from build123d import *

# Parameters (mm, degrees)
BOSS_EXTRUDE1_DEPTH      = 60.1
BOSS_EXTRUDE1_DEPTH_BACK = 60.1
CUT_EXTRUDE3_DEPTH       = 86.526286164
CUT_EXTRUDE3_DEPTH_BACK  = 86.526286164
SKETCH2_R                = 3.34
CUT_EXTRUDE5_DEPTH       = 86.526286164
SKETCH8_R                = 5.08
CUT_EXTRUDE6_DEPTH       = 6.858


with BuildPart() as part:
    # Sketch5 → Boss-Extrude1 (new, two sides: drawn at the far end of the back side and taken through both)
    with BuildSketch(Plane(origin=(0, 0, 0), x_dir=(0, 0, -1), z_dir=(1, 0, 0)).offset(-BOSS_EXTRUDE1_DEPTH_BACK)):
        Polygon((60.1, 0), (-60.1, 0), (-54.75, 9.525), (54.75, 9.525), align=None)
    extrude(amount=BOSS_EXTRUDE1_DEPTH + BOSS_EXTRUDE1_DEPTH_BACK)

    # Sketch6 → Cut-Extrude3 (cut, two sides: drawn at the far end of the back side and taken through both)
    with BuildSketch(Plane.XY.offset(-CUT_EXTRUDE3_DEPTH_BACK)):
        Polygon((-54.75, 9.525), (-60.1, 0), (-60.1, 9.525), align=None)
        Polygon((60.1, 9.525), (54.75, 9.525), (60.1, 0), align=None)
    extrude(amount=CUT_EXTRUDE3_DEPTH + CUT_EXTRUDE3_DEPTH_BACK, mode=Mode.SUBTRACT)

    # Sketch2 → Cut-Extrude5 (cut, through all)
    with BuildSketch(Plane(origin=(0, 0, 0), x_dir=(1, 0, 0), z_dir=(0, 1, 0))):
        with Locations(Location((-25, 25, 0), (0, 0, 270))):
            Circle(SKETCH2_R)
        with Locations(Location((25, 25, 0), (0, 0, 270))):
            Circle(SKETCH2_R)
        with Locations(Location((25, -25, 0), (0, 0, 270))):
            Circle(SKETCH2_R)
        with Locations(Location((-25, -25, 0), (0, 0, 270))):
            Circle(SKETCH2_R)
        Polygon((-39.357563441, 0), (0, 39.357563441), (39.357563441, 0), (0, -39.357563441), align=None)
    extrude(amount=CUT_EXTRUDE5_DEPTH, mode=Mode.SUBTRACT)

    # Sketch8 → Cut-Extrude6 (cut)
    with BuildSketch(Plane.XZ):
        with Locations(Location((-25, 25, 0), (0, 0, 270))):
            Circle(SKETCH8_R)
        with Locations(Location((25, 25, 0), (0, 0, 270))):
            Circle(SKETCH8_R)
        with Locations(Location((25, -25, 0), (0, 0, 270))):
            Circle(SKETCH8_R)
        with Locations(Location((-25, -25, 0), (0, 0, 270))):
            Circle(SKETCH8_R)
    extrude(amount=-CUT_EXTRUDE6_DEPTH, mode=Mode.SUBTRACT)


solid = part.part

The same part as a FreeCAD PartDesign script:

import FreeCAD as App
import Part
import Sketcher
from FreeCAD import Vector


def add_polygon(sketch, points):
    """Adds a closed chain of lines whose ends are joined by coincident constraints."""
    first, n = sketch.GeometryCount, len(points)
    for a, b in zip(points, points[1:] + points[:1]):
        sketch.addGeometry(Part.LineSegment(App.Vector(*a, 0), App.Vector(*b, 0)), False)
    for i in range(n):
        sketch.addConstraint(Sketcher.Constraint("Coincident", first + i, 2, first + (i + 1) % n, 1))

doc = App.newDocument("Part")
body = doc.addObject("PartDesign::Body", "Body")

# Sketch on YZ plane
sketch1 = doc.addObject("Sketcher::SketchObject", "Sketch")
body.addObject(sketch1)
sketch1.AttachmentSupport = (doc.YZ_Plane, [""])
sketch1.MapMode = "FlatFace"
add_polygon(sketch1, [(0, 60.1), (0, -60.1), (9.525, -54.75), (9.525, 54.75)])  # lines 0-3
sketch1.addConstraint([
    Sketcher.Constraint("Vertical", 0),
    Sketcher.Constraint("Vertical", 2),
    Sketcher.Constraint("Symmetric", 0, 2, 3, 2, -1, 1),
    Sketcher.Constraint("Equal", 1, 3),
    Sketcher.Constraint("DistanceY", 0, 2, 0, 1, 120.2),
    Sketcher.Constraint("DistanceY", 2, 1, 2, 2, 109.5),
    Sketcher.Constraint("DistanceX", -1, 1, 1, 2, 9.525),
])
pad1 = doc.addObject("PartDesign::Pad", "Pad")
body.addObject(pad1)
pad1.Profile = sketch1
pad1.Type = "TwoLengths"
pad1.Length = 60.1
pad1.Length2 = 60.1

# Sketch on XY plane
sketch2 = doc.addObject("Sketcher::SketchObject", "Sketch001")
body.addObject(sketch2)
sketch2.AttachmentSupport = (doc.XY_Plane, [""])
sketch2.MapMode = "FlatFace"
add_polygon(sketch2, [(-60.1, 0), (-54.75, 9.525), (-60.1, 9.525)])  # lines 0-2
add_polygon(sketch2, [(60.1, 9.525), (54.75, 9.525), (60.1, 0)])  # lines 3-5
sketch2.addConstraint([
    Sketcher.Constraint("Horizontal", 1),
    Sketcher.Constraint("Vertical", 2),
    Sketcher.Constraint("Horizontal", 3),
    Sketcher.Constraint("Vertical", 5),
    Sketcher.Constraint("Symmetric", 2, 2, 4, 2, -1, 1),
    Sketcher.Constraint("Symmetric", 0, 2, 3, 2, -2),
    Sketcher.Constraint("PointOnObject", 2, 2, -1),
    Sketcher.Constraint("DistanceX", 1, 2, 1, 1, 5.35),
    Sketcher.Constraint("DistanceX", 1, 2, -1, 1, 60.1),
    Sketcher.Constraint("DistanceY", 2, 2, 2, 1, 9.525),
])
pocket1 = doc.addObject("PartDesign::Pocket", "Pocket")
body.addObject(pocket1)
pocket1.Profile = sketch2
pocket1.Type = "ThroughAll"
pocket1.Midplane = True

# Sketch on XZ plane
sketch3 = doc.addObject("Sketcher::SketchObject", "Sketch002")
body.addObject(sketch3)
sketch3.AttachmentSupport = (doc.XZ_Plane, [""])
sketch3.MapMode = "FlatFace"
sketch3.addGeometry(Part.Circle(Vector(-25, -25, 0), Vector(0, 0, 1), 3.34), False)  # 0
sketch3.addGeometry(Part.Circle(Vector(25, -25, 0), Vector(0, 0, 1), 3.34), False)  # 1
sketch3.addGeometry(Part.Circle(Vector(25, 25, 0), Vector(0, 0, 1), 3.34), False)  # 2
sketch3.addGeometry(Part.Circle(Vector(-25, 25, 0), Vector(0, 0, 1), 3.34), False)  # 3
add_polygon(sketch3, [(0, -39.357563), (-39.357563, 0), (0, 39.357563), (39.357563, 0)])  # lines 4-7
sketch3.addConstraint([
    Sketcher.Constraint("Equal", 0, 1),
    Sketcher.Constraint("Equal", 1, 2),
    Sketcher.Constraint("Equal", 2, 3),
    Sketcher.Constraint("Symmetric", 0, 3, 2, 3, -1, 1),
    Sketcher.Constraint("Symmetric", 1, 3, 3, 3, -1, 1),
    Sketcher.Constraint("Symmetric", 4, 2, 6, 2, -1, 1),
    Sketcher.Constraint("Symmetric", 5, 2, 7, 2, -1, 1),
    Sketcher.Constraint("Symmetric", 0, 3, 1, 3, -2),
    Sketcher.Constraint("PointOnObject", 4, 2, -1),
    Sketcher.Constraint("PointOnObject", 5, 2, -2),
    Sketcher.Constraint("Perpendicular", 4, 5),
    Sketcher.Constraint("Diameter", 0, 6.68),
    Sketcher.Constraint("DistanceX", 0, 3, -1, 1, 25.0),
    Sketcher.Constraint("DistanceY", 0, 3, -1, 1, 25.0),
    Sketcher.Constraint("Distance", 4, 55.66),
])
pocket2 = doc.addObject("PartDesign::Pocket", "Pocket001")
body.addObject(pocket2)
pocket2.Profile = sketch3
pocket2.Type = "ThroughAll"

# Sketch on XZ plane
sketch4 = doc.addObject("Sketcher::SketchObject", "Sketch003")
body.addObject(sketch4)
sketch4.AttachmentSupport = (doc.XZ_Plane, [""])
sketch4.MapMode = "FlatFace"
sketch4.addGeometry([
    Part.Circle(Vector(-25, 25, 0), Vector(0, 0, 1), 5.08),
    Part.Circle(Vector(25, 25, 0), Vector(0, 0, 1), 5.08),
    Part.Circle(Vector(25, -25, 0), Vector(0, 0, 1), 5.08),
    Part.Circle(Vector(-25, -25, 0), Vector(0, 0, 1), 5.08),
], False)
sketch4.addConstraint([
    Sketcher.Constraint("Equal", 0, 1),
    Sketcher.Constraint("Equal", 1, 2),
    Sketcher.Constraint("Equal", 2, 3),
    Sketcher.Constraint("Symmetric", 0, 3, 2, 3, -1, 1),
    Sketcher.Constraint("Symmetric", 1, 3, 3, 3, -1, 1),
    Sketcher.Constraint("Symmetric", 0, 3, 1, 3, -2),
    Sketcher.Constraint("Diameter", 0, 10.16),
    Sketcher.Constraint("DistanceX", 0, 3, -1, 1, 25.0),
    Sketcher.Constraint("DistanceY", -1, 1, 0, 3, 25.0),
])
pocket3 = doc.addObject("PartDesign::Pocket", "Pocket002")
body.addObject(pocket3)
pocket3.Profile = sketch4
pocket3.Length = 6.858

doc.recompute()
